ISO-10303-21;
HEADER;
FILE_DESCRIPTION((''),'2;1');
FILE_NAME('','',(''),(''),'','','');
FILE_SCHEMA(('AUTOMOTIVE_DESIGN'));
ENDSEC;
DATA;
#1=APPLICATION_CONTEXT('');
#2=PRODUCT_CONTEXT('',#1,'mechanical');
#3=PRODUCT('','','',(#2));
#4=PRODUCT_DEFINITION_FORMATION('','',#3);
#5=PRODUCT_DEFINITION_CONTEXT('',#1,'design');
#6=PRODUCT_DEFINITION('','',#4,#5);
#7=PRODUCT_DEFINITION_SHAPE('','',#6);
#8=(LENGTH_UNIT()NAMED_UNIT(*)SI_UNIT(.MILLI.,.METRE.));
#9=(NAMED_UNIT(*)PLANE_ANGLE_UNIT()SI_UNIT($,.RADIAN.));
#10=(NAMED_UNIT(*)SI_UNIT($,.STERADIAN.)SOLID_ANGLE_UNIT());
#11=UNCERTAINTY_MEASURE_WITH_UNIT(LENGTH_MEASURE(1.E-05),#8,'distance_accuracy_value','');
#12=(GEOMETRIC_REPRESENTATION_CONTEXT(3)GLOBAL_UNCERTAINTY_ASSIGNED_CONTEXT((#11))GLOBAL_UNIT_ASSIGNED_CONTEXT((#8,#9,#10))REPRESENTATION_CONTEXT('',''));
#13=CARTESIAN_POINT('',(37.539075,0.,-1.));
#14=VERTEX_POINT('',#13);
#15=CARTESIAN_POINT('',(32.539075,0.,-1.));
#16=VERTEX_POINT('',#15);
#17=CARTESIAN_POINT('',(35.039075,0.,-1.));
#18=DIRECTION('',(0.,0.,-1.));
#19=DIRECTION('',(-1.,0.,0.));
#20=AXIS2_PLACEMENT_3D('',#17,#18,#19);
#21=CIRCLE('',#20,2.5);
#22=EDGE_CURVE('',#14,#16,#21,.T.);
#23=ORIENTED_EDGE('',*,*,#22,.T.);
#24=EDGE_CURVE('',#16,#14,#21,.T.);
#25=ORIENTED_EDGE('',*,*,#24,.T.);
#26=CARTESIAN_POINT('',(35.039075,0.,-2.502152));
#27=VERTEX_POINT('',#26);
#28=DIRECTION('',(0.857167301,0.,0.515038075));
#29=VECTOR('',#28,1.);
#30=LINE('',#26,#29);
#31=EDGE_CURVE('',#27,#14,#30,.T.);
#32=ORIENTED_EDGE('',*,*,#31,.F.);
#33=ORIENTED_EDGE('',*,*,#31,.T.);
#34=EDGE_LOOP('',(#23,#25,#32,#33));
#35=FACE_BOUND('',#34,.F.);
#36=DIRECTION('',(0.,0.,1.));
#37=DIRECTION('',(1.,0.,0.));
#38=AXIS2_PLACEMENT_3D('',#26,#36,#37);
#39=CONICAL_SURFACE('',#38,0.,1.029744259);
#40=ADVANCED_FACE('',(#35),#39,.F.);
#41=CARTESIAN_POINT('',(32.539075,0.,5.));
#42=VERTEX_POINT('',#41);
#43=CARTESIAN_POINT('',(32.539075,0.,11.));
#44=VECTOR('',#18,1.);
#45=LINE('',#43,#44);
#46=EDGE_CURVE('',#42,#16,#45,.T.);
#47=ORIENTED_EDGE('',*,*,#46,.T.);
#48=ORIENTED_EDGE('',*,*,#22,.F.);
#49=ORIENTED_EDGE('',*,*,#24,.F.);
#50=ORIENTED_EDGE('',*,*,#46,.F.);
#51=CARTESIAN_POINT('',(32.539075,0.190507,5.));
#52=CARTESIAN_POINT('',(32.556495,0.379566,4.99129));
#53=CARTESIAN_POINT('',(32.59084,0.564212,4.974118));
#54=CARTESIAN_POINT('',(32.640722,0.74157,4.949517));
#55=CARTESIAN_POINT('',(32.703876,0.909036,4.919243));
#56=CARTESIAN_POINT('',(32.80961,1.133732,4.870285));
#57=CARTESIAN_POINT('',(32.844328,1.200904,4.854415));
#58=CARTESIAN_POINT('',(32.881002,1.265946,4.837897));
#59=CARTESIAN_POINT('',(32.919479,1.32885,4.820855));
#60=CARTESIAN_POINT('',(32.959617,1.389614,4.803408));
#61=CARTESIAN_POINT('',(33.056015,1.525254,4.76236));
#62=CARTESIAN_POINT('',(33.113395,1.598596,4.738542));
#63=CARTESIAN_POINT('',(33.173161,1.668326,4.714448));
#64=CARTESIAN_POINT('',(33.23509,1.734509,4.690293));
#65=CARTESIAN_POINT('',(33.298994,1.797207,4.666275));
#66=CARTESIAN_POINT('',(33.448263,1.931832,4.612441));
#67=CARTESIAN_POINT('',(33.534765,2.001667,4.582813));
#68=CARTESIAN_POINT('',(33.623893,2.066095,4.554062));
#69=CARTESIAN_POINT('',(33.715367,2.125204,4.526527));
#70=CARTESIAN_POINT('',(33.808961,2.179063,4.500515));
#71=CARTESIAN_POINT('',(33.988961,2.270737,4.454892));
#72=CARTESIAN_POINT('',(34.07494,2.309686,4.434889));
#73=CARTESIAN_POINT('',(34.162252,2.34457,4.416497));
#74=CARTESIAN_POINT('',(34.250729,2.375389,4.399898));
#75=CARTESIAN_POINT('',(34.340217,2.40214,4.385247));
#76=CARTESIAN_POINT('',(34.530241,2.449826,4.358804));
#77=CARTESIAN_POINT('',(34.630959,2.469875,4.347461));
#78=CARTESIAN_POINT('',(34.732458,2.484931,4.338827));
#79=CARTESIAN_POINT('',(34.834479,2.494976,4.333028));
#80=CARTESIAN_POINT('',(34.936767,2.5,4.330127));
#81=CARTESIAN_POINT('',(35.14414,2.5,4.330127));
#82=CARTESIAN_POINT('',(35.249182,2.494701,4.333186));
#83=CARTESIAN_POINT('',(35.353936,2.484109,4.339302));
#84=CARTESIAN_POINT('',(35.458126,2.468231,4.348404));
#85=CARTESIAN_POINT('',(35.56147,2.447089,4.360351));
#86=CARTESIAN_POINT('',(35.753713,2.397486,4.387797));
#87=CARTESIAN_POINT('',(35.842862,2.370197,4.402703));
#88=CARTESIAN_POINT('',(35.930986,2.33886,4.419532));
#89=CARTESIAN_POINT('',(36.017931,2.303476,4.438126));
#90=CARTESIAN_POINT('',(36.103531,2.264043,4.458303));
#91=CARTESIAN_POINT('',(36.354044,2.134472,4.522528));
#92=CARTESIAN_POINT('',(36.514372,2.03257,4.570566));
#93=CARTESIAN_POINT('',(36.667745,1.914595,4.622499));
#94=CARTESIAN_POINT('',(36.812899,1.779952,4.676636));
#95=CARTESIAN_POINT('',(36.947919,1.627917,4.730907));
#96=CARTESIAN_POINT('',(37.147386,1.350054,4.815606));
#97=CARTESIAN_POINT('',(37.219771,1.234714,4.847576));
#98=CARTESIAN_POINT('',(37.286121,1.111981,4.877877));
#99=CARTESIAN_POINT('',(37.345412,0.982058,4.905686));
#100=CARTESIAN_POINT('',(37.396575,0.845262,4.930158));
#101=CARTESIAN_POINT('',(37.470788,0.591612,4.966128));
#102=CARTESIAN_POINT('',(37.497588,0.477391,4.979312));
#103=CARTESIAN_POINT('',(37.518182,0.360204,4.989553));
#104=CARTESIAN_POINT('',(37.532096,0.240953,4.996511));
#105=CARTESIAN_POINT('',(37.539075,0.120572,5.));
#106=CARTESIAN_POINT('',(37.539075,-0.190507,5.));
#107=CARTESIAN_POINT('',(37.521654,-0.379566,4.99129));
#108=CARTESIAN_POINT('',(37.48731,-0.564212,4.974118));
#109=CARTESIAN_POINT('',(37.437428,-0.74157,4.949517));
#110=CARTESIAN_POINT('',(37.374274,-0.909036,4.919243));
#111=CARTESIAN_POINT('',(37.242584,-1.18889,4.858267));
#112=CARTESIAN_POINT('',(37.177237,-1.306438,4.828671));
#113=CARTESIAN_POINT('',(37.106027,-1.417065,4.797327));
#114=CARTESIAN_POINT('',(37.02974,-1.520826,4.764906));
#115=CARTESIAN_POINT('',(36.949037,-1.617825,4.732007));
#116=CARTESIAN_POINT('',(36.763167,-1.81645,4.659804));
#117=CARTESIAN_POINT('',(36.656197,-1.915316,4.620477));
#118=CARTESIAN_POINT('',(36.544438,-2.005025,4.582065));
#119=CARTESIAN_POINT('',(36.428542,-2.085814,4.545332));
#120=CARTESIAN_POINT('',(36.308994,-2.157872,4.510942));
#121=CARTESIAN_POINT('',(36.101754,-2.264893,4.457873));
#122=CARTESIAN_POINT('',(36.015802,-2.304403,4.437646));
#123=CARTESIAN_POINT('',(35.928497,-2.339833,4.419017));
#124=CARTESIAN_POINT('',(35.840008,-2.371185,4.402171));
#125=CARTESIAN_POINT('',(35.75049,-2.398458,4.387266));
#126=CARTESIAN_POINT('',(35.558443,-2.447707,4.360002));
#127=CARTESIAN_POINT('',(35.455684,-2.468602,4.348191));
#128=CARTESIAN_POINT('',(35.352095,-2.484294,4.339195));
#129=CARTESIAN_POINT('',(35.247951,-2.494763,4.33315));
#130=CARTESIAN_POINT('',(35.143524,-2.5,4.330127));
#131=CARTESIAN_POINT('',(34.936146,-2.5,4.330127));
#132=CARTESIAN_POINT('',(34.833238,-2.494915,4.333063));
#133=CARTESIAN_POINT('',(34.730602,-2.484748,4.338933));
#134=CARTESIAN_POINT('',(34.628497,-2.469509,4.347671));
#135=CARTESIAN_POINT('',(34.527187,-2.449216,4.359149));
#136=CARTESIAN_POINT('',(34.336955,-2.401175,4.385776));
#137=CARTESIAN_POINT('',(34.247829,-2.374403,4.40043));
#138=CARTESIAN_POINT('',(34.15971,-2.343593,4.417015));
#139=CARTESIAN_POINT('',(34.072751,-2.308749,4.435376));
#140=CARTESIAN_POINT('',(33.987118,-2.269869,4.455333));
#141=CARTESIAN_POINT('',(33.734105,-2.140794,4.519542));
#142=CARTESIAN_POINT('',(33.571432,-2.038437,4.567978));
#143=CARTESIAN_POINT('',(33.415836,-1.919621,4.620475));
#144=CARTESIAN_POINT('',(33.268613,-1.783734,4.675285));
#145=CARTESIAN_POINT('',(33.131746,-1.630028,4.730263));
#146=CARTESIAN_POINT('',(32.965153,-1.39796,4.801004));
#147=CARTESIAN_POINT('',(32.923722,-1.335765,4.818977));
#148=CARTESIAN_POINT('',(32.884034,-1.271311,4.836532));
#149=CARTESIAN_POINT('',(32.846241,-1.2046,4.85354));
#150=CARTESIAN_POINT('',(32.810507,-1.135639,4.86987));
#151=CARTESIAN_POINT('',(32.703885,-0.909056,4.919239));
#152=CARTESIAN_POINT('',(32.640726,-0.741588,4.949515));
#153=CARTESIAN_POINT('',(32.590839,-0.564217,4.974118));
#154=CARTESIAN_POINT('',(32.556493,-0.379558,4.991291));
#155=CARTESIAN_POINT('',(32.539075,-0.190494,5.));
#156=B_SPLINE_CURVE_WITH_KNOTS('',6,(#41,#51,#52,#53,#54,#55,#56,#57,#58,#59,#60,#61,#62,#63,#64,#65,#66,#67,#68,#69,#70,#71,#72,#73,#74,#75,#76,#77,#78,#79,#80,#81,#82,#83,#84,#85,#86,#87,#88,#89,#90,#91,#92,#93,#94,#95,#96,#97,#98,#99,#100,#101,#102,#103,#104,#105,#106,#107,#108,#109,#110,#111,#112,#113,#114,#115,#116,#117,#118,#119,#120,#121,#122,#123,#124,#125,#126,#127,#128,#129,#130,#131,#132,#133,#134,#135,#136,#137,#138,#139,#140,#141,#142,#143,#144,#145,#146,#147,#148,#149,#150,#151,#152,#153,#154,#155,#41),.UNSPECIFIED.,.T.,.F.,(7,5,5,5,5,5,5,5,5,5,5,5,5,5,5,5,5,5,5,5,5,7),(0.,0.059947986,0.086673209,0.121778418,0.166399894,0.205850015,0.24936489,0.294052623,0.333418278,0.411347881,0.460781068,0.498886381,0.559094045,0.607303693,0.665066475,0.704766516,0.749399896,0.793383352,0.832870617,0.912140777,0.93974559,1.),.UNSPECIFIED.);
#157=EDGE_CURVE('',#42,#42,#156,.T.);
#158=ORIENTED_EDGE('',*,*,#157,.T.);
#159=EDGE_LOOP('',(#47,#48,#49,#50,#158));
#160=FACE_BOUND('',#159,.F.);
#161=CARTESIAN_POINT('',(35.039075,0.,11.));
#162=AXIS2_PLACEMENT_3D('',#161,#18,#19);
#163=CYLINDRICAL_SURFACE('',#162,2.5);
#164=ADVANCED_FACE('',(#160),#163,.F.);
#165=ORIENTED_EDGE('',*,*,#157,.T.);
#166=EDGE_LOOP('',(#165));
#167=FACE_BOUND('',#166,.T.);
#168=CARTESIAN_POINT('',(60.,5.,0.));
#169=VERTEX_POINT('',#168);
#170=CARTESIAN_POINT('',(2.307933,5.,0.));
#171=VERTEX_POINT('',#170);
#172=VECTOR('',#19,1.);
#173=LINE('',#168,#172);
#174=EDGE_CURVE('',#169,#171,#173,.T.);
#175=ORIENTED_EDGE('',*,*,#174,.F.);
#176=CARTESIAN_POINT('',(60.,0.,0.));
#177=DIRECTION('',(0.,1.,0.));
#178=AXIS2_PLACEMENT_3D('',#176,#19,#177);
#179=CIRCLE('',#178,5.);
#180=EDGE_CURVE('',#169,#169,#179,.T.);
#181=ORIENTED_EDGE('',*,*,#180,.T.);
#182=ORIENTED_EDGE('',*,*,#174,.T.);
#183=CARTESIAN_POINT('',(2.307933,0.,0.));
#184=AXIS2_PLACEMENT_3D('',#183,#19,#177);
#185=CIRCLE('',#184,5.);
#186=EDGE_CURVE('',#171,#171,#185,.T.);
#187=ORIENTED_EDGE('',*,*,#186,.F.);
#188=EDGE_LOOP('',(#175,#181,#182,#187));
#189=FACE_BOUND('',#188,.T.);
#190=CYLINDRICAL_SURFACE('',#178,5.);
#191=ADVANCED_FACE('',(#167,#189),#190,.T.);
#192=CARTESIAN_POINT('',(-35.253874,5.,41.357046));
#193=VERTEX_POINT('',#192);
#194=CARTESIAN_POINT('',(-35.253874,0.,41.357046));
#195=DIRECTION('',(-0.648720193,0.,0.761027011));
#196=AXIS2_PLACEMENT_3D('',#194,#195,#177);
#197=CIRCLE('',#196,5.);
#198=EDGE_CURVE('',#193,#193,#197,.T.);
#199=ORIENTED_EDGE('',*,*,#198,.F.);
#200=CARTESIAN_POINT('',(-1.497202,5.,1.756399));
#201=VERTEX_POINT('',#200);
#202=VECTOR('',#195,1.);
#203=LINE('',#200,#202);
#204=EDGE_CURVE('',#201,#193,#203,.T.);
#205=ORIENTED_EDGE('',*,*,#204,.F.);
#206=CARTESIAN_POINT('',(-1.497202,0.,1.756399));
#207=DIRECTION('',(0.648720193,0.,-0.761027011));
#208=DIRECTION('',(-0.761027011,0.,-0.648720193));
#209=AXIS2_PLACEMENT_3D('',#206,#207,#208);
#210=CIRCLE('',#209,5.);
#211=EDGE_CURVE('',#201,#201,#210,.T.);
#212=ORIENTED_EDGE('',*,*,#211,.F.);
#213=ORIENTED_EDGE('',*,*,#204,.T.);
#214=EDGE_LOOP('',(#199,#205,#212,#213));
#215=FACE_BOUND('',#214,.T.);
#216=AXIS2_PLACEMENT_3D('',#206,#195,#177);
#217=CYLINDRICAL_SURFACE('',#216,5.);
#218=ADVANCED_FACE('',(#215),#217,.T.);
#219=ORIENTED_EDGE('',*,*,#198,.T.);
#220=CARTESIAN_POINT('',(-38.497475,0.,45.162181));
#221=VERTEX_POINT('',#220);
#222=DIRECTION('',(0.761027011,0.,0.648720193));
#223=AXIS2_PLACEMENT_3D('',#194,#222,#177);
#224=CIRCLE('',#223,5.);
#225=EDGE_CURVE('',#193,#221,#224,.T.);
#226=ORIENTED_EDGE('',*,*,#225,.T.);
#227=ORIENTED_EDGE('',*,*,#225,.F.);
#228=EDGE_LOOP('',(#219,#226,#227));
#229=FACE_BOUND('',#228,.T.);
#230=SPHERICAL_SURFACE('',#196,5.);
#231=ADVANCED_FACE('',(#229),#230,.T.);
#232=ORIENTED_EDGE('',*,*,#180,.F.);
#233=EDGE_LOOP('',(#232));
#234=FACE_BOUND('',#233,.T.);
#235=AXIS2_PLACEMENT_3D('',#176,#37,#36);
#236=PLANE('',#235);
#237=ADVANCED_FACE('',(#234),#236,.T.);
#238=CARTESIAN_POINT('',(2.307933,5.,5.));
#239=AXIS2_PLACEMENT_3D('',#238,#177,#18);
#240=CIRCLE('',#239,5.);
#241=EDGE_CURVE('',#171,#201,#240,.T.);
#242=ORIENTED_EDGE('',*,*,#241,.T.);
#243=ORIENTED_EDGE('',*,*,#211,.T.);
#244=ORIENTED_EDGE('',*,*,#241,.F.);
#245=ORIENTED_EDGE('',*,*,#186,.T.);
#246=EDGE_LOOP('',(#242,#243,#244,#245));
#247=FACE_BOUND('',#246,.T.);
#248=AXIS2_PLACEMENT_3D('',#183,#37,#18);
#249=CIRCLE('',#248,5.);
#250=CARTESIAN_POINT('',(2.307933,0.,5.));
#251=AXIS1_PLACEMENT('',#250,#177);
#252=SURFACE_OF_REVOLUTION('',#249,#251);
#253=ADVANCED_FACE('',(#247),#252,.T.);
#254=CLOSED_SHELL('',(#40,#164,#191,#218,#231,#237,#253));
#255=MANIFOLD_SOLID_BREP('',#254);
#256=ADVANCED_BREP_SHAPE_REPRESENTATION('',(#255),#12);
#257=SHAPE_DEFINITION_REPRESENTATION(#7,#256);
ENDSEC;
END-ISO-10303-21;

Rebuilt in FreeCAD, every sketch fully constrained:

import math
import FreeCAD as App
import Part
import Sketcher
Q = App.Units.Quantity


def edges_at(feature, points):
    """Names of the edges that pass closest to the given points."""
    edges = feature.Shape.Edges
    near = lambda p: min(range(len(edges)), key=lambda i: edges[i].distToShape(Part.Vertex(*p))[0])
    return sorted({f"Edge{near(p) + 1}" for p in points})

doc = App.newDocument("Part")
body = doc.addObject("PartDesign::Body", "Body")

sketch1 = doc.addObject("Sketcher::SketchObject", "Sketch")
body.addObject(sketch1)
sketch1.AttachmentSupport = (doc.YZ_Plane, [""])
sketch1.MapMode = "FlatFace"
sketch1.AttachmentOffset = App.Placement(App.Vector(0, 0, 60), App.Rotation())
sketch1.addGeometry(Part.Circle(App.Vector(0, 0, 0), App.Vector(0, 0, 1), 5), False)
sketch1.addConstraint([
    Sketcher.Constraint("Coincident", 0, 3, -1, 1),
    Sketcher.Constraint("Diameter", 0, Q("10 mm")),
])

sketch2 = doc.addObject("Sketcher::SketchObject", "Sketch001")
body.addObject(sketch2)
sketch2.AttachmentSupport = (doc.XZ_Plane, [""])
sketch2.MapMode = "FlatFace"
sketch2.addGeometry([
    Part.LineSegment(App.Vector(60, 0, 0), App.Vector(2.307933, 0, 0)),
    Part.ArcOfCircle(Part.Circle(App.Vector(2.307933, 5, 0), App.Vector(0, 0, 1), 5), math.radians(-139.554821), math.radians(-90)),
    Part.LineSegment(App.Vector(-1.497202, 1.756399, 0), App.Vector(-38.497475, 45.162181, 0)),
], False)
sketch2.addConstraint([
    Sketcher.Constraint("Tangent", 0, 2, 1, 2),
    Sketcher.Constraint("Tangent", 1, 1, 2, 1),
    Sketcher.Constraint("Horizontal", 0),
    Sketcher.Constraint("PointOnObject", 0, 1, -1),
    Sketcher.Constraint("Radius", 1, Q("5 mm")),
    Sketcher.Constraint("DistanceX", -1, 1, 0, 1, Q("60 mm")),
    Sketcher.Constraint("DistanceY", -1, 1, 1, 1, Q("1.756399 mm")),
    Sketcher.Constraint("DistanceX", 0, 2, 0, 1, Q("57.692067 mm")),
    Sketcher.Constraint("DistanceY", -1, 1, 2, 2, Q("45.162181 mm")),
])
doc.recompute()

additivepipe = doc.addObject("PartDesign::AdditivePipe", "AdditivePipe")
body.addObject(additivepipe)
additivepipe.Profile = sketch1
additivepipe.Spine = (sketch2, ["Edge1", "Edge2", "Edge3"])

sketch3 = doc.addObject("Sketcher::SketchObject", "Sketch002")
body.addObject(sketch3)
sketch3.AttachmentSupport = (doc.XY_Plane, [""])
sketch3.MapMode = "FlatFace"
sketch3.AttachmentOffset = App.Placement(App.Vector(0, 0, 5), App.Rotation())
sketch3.addGeometry(Part.Circle(App.Vector(35.039075, 0, 0), App.Vector(0, 0, 1), 2.5), False)
sketch3.addConstraint([
    Sketcher.Constraint("PointOnObject", 0, 3, -1),
    Sketcher.Constraint("Diameter", 0, Q("5 mm")),
    Sketcher.Constraint("DistanceX", -1, 1, 0, 3, Q("35.039075 mm")),
])
doc.recompute()
hole = doc.addObject("PartDesign::Hole", "Hole")
body.addObject(hole)
hole.Profile = sketch3
hole.ThreadType = "None"
hole.Diameter = 5
hole.DepthType = "Dimension"
hole.Depth = 6
hole.DrillPoint = "Angled"
hole.DrillPointAngle = 118
doc.recompute()

fillet = doc.addObject("PartDesign::Fillet", "Fillet")
body.addObject(fillet)
fillet.Base = (hole, edges_at(hole, [(-38.497, -5, 45.162)]))
fillet.Radius = 5

doc.recompute()
